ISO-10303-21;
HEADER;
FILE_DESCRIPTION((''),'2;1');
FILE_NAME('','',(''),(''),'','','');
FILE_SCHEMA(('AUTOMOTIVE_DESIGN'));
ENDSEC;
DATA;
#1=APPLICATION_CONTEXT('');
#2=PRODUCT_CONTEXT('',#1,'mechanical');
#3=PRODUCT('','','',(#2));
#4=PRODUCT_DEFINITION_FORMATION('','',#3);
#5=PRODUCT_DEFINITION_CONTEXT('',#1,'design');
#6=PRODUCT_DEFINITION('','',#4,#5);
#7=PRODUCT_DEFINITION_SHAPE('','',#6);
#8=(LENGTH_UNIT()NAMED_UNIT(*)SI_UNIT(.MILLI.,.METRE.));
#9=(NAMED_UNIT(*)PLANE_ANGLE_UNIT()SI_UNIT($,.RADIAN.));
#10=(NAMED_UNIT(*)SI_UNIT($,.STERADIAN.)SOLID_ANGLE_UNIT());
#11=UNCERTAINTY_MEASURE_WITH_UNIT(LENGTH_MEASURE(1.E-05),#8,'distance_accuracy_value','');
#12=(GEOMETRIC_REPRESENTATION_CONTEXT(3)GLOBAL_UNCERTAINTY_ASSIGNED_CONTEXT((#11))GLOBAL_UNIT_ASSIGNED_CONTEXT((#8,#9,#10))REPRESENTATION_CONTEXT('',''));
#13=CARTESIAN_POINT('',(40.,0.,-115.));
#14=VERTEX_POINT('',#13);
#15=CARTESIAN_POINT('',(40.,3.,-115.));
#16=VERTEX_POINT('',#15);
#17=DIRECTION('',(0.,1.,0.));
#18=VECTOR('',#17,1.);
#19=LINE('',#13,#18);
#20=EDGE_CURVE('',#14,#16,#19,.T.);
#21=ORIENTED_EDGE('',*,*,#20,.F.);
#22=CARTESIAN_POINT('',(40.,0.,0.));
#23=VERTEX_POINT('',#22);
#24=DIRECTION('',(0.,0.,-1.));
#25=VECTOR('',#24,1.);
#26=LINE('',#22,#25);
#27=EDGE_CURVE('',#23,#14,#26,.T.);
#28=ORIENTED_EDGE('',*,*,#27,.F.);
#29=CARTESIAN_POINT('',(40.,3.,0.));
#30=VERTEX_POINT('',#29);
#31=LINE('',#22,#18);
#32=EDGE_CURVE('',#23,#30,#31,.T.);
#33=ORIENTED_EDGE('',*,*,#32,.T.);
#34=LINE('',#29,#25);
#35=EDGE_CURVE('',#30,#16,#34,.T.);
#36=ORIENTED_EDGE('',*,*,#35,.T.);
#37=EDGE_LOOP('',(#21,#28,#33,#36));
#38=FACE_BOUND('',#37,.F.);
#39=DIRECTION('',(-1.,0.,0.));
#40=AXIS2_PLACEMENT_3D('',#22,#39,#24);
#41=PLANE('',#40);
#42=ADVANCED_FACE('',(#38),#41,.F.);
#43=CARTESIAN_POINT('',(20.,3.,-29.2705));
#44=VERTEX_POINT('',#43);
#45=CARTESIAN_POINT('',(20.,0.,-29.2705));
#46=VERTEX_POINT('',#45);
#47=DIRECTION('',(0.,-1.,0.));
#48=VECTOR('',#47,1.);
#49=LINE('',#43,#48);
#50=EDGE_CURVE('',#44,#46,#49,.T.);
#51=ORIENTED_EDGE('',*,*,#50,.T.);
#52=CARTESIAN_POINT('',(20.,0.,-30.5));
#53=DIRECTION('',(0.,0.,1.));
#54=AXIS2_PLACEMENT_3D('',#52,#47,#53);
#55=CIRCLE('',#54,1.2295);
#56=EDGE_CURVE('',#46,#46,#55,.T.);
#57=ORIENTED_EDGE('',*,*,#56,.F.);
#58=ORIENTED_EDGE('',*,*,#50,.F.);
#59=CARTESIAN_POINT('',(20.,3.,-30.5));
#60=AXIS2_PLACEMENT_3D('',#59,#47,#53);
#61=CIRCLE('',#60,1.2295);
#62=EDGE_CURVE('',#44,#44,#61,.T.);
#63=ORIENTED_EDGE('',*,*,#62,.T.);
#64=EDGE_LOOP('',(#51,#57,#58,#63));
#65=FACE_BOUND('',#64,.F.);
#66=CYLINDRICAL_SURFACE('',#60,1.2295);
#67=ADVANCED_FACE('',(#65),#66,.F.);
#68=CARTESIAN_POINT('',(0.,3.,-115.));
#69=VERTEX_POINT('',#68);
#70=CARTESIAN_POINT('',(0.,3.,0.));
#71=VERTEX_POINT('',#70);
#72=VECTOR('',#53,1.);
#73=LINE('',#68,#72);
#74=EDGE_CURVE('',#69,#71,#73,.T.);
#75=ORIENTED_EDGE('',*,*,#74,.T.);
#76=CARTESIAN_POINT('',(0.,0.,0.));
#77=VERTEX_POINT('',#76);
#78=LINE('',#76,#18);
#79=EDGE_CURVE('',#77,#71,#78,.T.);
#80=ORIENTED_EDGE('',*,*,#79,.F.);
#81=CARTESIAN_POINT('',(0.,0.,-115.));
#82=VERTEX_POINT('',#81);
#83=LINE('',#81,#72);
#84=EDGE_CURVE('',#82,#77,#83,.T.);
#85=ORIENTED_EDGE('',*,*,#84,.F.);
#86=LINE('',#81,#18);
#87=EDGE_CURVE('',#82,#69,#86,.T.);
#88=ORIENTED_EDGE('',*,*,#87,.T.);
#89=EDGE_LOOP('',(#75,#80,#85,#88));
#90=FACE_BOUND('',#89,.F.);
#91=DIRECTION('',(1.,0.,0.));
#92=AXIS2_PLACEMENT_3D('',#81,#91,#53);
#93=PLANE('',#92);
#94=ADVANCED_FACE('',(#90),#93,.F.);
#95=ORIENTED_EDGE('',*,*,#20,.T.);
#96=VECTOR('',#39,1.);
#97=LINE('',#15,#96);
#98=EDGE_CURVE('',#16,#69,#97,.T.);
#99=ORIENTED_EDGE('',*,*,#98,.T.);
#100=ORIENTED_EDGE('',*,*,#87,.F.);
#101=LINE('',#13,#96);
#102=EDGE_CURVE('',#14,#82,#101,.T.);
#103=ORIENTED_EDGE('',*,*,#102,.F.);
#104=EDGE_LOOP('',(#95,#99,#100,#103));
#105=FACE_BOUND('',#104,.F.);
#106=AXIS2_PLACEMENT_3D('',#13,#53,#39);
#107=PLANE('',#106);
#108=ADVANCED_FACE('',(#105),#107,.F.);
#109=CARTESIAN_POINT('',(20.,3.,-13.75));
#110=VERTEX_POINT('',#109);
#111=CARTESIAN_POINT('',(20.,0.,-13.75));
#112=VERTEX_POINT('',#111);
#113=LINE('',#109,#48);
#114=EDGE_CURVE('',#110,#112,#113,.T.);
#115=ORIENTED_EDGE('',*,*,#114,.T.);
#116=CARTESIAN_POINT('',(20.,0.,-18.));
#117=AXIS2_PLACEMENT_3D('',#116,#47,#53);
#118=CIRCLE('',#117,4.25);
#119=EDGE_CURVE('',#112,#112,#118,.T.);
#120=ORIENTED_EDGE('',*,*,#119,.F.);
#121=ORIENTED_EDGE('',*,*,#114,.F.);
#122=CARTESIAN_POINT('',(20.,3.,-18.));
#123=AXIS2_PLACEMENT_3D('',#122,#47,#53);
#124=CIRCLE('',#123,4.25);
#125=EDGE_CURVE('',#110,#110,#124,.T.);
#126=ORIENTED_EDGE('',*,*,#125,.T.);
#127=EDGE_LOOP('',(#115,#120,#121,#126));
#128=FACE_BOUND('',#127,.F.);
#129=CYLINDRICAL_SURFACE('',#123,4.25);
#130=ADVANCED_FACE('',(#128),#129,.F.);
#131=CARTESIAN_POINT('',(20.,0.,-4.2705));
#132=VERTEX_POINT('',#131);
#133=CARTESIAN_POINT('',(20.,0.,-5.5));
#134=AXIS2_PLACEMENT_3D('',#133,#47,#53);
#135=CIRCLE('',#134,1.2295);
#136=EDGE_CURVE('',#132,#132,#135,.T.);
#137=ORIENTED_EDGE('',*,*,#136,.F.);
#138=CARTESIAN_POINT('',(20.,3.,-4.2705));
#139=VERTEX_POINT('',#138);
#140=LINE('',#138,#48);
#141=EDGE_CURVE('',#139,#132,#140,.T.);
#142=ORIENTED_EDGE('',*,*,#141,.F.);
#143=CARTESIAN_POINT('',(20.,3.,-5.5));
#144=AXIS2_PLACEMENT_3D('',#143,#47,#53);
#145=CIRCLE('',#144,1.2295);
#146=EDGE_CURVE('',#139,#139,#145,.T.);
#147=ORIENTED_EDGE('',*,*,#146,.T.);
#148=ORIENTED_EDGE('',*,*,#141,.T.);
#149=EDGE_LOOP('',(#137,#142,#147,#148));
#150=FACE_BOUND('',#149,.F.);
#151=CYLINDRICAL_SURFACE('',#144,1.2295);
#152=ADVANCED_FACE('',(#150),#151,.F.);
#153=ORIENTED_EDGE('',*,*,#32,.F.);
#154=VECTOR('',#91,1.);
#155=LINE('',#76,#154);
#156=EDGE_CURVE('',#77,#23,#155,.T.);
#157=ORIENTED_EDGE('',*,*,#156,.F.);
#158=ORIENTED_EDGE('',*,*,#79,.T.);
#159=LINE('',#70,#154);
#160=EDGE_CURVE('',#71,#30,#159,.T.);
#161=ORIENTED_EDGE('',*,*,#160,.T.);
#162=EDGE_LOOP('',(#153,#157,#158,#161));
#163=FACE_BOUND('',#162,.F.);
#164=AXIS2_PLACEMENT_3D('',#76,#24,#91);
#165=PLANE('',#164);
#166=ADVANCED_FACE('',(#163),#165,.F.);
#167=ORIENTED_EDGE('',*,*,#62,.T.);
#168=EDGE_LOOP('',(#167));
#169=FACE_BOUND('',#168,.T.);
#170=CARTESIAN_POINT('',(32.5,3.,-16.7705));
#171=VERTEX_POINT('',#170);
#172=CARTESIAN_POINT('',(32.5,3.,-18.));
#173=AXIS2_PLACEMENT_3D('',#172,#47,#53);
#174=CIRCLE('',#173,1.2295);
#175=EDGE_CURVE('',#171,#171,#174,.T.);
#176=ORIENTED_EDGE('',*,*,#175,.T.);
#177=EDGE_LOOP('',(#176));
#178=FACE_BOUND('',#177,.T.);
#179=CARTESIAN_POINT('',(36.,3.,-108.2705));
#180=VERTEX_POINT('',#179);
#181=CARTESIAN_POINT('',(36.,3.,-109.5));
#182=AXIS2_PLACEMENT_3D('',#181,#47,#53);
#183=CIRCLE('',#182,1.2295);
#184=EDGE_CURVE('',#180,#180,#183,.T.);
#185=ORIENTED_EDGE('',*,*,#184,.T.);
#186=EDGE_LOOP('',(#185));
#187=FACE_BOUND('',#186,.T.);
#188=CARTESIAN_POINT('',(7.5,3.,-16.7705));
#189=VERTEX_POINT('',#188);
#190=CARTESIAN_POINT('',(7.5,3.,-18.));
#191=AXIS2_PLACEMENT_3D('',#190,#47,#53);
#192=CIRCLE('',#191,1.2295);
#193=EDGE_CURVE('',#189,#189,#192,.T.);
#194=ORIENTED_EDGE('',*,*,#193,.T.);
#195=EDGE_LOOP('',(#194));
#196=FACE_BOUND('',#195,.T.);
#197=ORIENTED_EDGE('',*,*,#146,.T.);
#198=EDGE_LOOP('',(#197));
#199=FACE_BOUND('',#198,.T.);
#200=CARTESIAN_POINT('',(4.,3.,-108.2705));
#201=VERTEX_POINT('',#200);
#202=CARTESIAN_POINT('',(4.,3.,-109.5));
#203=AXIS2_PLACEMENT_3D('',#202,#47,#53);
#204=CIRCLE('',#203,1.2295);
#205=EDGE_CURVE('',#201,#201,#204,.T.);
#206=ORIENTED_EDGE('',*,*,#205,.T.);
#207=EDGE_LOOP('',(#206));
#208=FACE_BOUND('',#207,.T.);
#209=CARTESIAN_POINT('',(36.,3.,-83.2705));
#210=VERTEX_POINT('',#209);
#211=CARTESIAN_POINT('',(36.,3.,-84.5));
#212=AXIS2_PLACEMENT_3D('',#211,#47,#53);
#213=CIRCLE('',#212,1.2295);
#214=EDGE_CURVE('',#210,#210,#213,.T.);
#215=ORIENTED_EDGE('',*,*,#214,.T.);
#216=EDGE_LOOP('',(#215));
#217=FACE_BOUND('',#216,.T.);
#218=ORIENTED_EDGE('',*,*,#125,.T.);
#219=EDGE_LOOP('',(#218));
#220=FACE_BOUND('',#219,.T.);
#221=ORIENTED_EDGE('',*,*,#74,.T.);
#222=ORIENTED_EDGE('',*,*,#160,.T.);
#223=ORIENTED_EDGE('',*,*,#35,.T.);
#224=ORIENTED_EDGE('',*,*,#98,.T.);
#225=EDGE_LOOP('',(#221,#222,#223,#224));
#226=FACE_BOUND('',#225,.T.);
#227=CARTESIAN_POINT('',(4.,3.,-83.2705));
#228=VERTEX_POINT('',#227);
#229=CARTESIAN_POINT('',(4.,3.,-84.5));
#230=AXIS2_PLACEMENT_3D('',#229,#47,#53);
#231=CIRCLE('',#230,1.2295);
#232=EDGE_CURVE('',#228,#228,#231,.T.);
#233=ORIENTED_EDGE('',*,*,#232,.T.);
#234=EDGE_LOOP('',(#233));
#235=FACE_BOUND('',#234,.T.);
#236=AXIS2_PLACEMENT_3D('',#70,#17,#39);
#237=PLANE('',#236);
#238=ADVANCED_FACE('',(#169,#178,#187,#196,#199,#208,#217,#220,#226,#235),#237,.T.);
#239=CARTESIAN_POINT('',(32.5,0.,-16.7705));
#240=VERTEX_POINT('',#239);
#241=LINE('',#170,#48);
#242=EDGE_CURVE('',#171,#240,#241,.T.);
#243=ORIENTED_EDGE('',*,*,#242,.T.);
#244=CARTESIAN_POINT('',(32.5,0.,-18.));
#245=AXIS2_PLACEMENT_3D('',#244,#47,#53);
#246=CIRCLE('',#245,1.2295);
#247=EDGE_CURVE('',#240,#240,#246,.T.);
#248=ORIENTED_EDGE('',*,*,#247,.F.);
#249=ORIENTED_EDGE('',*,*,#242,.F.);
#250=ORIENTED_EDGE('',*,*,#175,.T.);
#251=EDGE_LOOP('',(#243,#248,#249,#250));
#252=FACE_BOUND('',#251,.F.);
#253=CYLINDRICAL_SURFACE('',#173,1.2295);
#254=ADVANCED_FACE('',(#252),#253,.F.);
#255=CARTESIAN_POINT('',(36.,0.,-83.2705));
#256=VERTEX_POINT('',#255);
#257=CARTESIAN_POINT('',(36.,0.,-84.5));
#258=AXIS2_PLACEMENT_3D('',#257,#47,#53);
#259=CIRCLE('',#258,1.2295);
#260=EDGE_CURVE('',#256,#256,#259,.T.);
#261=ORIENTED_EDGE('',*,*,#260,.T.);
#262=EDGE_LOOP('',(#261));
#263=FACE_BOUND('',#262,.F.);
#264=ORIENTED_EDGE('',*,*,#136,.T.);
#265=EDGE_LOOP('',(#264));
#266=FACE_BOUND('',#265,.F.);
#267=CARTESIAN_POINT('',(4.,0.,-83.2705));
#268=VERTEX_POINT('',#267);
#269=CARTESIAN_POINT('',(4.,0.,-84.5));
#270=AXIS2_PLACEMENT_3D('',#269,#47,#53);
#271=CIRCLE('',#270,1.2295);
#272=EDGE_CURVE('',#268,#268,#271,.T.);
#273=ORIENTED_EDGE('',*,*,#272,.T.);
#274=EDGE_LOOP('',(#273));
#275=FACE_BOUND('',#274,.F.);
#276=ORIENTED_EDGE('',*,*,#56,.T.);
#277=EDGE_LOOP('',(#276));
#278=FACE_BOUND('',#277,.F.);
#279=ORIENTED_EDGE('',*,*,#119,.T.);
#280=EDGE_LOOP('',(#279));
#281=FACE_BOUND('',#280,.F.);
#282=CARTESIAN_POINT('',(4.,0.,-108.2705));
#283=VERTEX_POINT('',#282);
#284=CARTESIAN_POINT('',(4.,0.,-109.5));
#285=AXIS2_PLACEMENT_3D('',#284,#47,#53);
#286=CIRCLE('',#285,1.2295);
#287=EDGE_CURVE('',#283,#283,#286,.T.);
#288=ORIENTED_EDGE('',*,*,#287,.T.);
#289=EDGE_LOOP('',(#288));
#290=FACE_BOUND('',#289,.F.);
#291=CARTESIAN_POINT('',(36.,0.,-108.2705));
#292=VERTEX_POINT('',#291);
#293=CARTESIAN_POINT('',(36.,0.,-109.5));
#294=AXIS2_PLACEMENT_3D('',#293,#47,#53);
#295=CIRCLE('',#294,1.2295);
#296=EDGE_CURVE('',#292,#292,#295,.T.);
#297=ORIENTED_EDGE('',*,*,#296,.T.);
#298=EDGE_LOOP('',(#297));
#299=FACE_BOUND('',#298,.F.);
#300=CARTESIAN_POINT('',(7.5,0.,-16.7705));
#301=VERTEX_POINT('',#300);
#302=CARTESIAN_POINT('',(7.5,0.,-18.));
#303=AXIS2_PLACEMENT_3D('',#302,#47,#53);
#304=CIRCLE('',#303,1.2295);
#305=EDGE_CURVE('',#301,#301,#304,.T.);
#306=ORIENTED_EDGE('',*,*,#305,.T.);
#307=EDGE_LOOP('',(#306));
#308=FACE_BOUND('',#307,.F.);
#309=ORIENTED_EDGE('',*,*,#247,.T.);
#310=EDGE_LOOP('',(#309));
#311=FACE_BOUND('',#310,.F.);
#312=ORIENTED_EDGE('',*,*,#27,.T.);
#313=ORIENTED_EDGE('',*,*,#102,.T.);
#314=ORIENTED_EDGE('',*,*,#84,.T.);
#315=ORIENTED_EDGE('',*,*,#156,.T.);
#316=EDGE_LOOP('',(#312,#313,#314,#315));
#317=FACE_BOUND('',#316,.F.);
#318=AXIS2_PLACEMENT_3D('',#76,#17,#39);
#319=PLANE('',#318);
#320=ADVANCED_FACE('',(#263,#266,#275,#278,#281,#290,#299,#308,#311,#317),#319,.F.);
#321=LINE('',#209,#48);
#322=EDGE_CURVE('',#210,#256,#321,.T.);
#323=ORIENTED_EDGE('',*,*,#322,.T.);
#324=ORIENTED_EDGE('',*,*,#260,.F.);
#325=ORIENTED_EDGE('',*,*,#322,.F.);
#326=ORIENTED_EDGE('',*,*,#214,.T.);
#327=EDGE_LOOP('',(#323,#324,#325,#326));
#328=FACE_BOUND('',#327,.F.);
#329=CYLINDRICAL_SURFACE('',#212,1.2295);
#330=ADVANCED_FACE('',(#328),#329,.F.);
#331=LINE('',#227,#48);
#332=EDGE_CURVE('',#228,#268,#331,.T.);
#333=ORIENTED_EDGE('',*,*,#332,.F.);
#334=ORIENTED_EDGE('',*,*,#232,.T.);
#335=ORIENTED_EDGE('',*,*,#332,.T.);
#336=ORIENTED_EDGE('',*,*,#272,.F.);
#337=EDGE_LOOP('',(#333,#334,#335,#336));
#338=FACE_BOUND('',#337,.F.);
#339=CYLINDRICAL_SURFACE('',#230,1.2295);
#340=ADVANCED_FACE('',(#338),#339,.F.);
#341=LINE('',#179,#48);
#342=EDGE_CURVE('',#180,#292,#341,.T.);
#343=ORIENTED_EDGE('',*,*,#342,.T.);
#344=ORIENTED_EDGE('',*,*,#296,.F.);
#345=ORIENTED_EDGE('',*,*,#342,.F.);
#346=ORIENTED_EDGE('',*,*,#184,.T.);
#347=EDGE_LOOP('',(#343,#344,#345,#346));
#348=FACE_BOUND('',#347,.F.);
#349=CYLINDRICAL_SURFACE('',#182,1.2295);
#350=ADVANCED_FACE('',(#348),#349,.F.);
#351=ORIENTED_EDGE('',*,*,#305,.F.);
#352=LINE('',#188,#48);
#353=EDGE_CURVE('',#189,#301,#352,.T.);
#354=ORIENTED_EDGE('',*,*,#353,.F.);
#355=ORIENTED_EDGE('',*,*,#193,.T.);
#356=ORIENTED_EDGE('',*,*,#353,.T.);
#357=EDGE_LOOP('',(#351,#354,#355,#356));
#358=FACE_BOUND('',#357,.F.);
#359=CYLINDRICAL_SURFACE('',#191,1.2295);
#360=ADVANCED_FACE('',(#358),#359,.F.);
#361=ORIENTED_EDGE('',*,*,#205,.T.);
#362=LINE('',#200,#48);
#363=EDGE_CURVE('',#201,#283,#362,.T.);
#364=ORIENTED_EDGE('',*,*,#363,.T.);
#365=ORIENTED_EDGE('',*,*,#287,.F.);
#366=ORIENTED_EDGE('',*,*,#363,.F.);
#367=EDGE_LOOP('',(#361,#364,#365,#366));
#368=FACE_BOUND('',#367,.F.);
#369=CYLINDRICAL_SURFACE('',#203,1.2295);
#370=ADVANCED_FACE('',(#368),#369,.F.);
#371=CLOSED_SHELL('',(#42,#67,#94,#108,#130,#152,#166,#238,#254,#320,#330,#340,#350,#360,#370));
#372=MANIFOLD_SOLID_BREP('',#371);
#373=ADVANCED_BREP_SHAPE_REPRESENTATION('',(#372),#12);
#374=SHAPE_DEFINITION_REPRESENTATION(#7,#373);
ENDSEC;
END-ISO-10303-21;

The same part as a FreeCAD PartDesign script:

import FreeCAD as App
import Part
import Sketcher
from FreeCAD import Vector

doc = App.newDocument("Part")
params = doc.addObject("Spreadsheet::Sheet", "Params")
for row, (alias, value) in enumerate([
    ("sketch1_width", "40 mm"),
    ("sketch1_height", "115 mm"),
    ("pad1_length", "3 mm"),
    ("sketch2_diameter", "8.5 mm"),
    ("hole_diameter", "8.5 mm"),
    ("hole2_diameter", "2.459 mm"),
    ("hole3_diameter", "2.459 mm"),
], start=1):
    params.set(f"A{row}", alias)
    params.set(f"B{row}", "=" + value)
    params.setAlias(f"B{row}", alias)

body = doc.addObject("PartDesign::Body", "Body")

# Sketch on XZ plane
sketch1 = body.newObject("Sketcher::SketchObject", "Sketch")
sketch1.AttachmentSupport = (doc.getObject("XZ_Plane"), [""])
sketch1.MapMode = "FlatFace"
sketch1.addGeometry([
    Part.LineSegment(Vector(0, -115, 0), Vector(0, 0, 0)),
    Part.LineSegment(Vector(0, 0, 0), Vector(40, 0, 0)),
    Part.LineSegment(Vector(40, 0, 0), Vector(40, -115, 0)),
    Part.LineSegment(Vector(40, -115, 0), Vector(0, -115, 0)),
], False)
sketch1.addConstraint([
    Sketcher.Constraint("Coincident", 0, 2, 1, 1),
    Sketcher.Constraint("Coincident", 1, 2, 2, 1),
    Sketcher.Constraint("Coincident", 2, 2, 3, 1),
    Sketcher.Constraint("Coincident", 3, 2, 0, 1),
    Sketcher.Constraint("Vertical", 0),
    Sketcher.Constraint("Horizontal", 1),
    Sketcher.Constraint("Vertical", 2),
    Sketcher.Constraint("Horizontal", 3),
    Sketcher.Constraint("Coincident", 0, 2, -1, 1),
    Sketcher.Constraint("DistanceX", 1, 1, 1, 2, 40.0),
    Sketcher.Constraint("DistanceY", 0, 1, 0, 2, 115.0),
])
sketch1.setExpression("Constraints[9]", "Params.sketch1_width")
sketch1.setExpression("Constraints[10]", "Params.sketch1_height")
pad1 = body.newObject("PartDesign::Pad", "Pad")
pad1.Profile = sketch1
pad1.setExpression("Length", "Params.pad1_length")
pad1.Reversed = True

# Sketch on XZ plane
sketch2 = body.newObject("Sketcher::SketchObject", "Sketch001")
sketch2.AttachmentSupport = (doc.getObject("XZ_Plane"), [""])
sketch2.MapMode = "FlatFace"
sketch2.AttachmentOffset = App.Placement(Vector(0, 0, -3), App.Rotation())
sketch2.addGeometry(Part.Circle(Vector(20, -18, 0), Vector(0, 0, 1), 4.2), False)
sketch2.addConstraint([
    Sketcher.Constraint("Diameter", 0, 8.5),
    Sketcher.Constraint("DistanceX", -1, 1, 0, 3, 20.0),
    Sketcher.Constraint("DistanceY", 0, 3, -1, 1, 18.0),
])
sketch2.setExpression("Constraints[0]", "Params.sketch2_diameter")
doc.recompute()
hole = body.newObject("PartDesign::Hole", "Hole")
hole.Profile = sketch2
hole.ThreadType = "None"
hole.setExpression("Diameter", "Params.hole_diameter")
hole.DepthType = "ThroughAll"
hole.Reversed = True

# Sketch on XZ plane
sketch3 = body.newObject("Sketcher::SketchObject", "Sketch002")
sketch3.AttachmentSupport = (doc.getObject("XZ_Plane"), [""])
sketch3.MapMode = "FlatFace"
sketch3.AttachmentOffset = App.Placement(Vector(0, 0, -3), App.Rotation())
sketch3.addGeometry([
    Part.Circle(Vector(7.5, -18, 0), Vector(0, 0, 1), 1.2),
    Part.Circle(Vector(20, -5.5, 0), Vector(0, 0, 1), 1.2),
    Part.Circle(Vector(32.5, -18, 0), Vector(0, 0, 1), 1.2),
    Part.Circle(Vector(20, -30.5, 0), Vector(0, 0, 1), 1.2),
], False)
sketch3.addConstraint([
    Sketcher.Constraint("Equal", 0, 1),
    Sketcher.Constraint("Equal", 1, 2),
    Sketcher.Constraint("Equal", 2, 3),
    Sketcher.Constraint("Horizontal", 0, 3, 2, 3),
    Sketcher.Constraint("Vertical", 1, 3, 3, 3),
    Sketcher.Constraint("Diameter", 0, 2.459),
    Sketcher.Constraint("DistanceY", 0, 3, -1, 1, 18.0),
    Sketcher.Constraint("DistanceX", -1, 1, 1, 3, 20.0),
    Sketcher.Constraint("DistanceX", 0, 3, 2, 3, 25.0),
    Sketcher.Constraint("DistanceY", 3, 3, 1, 3, 25.0),
    Sketcher.Constraint("DistanceX", -1, 1, 0, 3, 7.5),
    Sketcher.Constraint("DistanceY", 1, 3, -1, 1, 5.5),
])
doc.recompute()
hole2 = body.newObject("PartDesign::Hole", "Hole001")
hole2.Profile = sketch3
hole2.ThreadType = "None"
hole2.setExpression("Diameter", "Params.hole2_diameter")
hole2.DepthType = "ThroughAll"
hole2.Reversed = True

# Sketch on XZ plane
sketch4 = body.newObject("Sketcher::SketchObject", "Sketch003")
sketch4.AttachmentSupport = (doc.getObject("XZ_Plane"), [""])
sketch4.MapMode = "FlatFace"
sketch4.AttachmentOffset = App.Placement(Vector(0, 0, -3), App.Rotation())
sketch4.addGeometry([
    Part.Circle(Vector(36, -84.5, 0), Vector(0, 0, 1), 1.2),
    Part.Circle(Vector(36, -109.5, 0), Vector(0, 0, 1), 1.2),
    Part.Circle(Vector(4, -109.5, 0), Vector(0, 0, 1), 1.2),
    Part.Circle(Vector(4, -84.5, 0), Vector(0, 0, 1), 1.2),
], False)
sketch4.addConstraint([
    Sketcher.Constraint("Equal", 0, 1),
    Sketcher.Constraint("Equal", 1, 2),
    Sketcher.Constraint("Equal", 2, 3),
    Sketcher.Constraint("Horizontal", 1, 3, 2, 3),
    Sketcher.Constraint("Horizontal", 0, 3, 3, 3),
    Sketcher.Constraint("Vertical", 0, 3, 1, 3),
    Sketcher.Constraint("Vertical", 2, 3, 3, 3),
    Sketcher.Constraint("Diameter", 0, 2.459),
    Sketcher.Constraint("DistanceX", -1, 1, 0, 3, 36.0),
    Sketcher.Constraint("DistanceX", -1, 1, 2, 3, 4.0),
    Sketcher.Constraint("DistanceY", 1, 3, 0, 3, 25.0),
    Sketcher.Constraint("DistanceY", 0, 3, -1, 1, 84.5),
])
doc.recompute()
hole3 = body.newObject("PartDesign::Hole", "Hole002")
hole3.Profile = sketch4
hole3.ThreadType = "None"
hole3.setExpression("Diameter", "Params.hole3_diameter")
hole3.DepthType = "ThroughAll"
hole3.Reversed = True

doc.recompute()
